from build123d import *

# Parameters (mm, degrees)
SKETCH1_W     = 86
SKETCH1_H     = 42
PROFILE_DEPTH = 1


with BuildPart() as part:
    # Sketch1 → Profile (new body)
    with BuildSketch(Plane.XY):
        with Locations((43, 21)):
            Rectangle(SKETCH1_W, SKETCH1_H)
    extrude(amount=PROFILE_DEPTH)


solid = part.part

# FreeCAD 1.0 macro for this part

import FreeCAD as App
import Part
import Sketcher
from FreeCAD import Vector

doc = App.newDocument("Part")
body = doc.addObject("PartDesign::Body", "Body")

# Sketch on XY plane
sketch1 = doc.addObject("Sketcher::SketchObject", "Sketch")
body.addObject(sketch1)
sketch1.AttachmentSupport = (doc.XY_Plane, [""])
sketch1.MapMode = "FlatFace"
sketch1.addGeometry([
    Part.LineSegment(Vector(0, 42, 0), Vector(0, 0, 0)),
    Part.LineSegment(Vector(0, 0, 0), Vector(86, 0, 0)),
    Part.LineSegment(Vector(86, 0, 0), Vector(86, 42, 0)),
    Part.LineSegment(Vector(86, 42, 0), Vector(0, 42, 0)),
], False)
sketch1.addConstraint([
    Sketcher.Constraint("Coincident", 0, 2, 1, 1),
    Sketcher.Constraint("Coincident", 1, 2, 2, 1),
    Sketcher.Constraint("Coincident", 2, 2, 3, 1),
    Sketcher.Constraint("Coincident", 3, 2, 0, 1),
    Sketcher.Constraint("Vertical", 0),
    Sketcher.Constraint("Horizontal", 1),
    Sketcher.Constraint("Vertical", 2),
    Sketcher.Constraint("Horizontal", 3),
    Sketcher.Constraint("Coincident", 0, 2, -1, 1),
    Sketcher.Constraint("DistanceX", 1, 1, 1, 2, 86.0),
    Sketcher.Constraint("DistanceY", 0, 2, 0, 1, 42.0),
])
pad1 = doc.addObject("PartDesign::Pad", "Pad")
body.addObject(pad1)
pad1.Profile = sketch1
pad1.Length = 1

doc.recompute()
